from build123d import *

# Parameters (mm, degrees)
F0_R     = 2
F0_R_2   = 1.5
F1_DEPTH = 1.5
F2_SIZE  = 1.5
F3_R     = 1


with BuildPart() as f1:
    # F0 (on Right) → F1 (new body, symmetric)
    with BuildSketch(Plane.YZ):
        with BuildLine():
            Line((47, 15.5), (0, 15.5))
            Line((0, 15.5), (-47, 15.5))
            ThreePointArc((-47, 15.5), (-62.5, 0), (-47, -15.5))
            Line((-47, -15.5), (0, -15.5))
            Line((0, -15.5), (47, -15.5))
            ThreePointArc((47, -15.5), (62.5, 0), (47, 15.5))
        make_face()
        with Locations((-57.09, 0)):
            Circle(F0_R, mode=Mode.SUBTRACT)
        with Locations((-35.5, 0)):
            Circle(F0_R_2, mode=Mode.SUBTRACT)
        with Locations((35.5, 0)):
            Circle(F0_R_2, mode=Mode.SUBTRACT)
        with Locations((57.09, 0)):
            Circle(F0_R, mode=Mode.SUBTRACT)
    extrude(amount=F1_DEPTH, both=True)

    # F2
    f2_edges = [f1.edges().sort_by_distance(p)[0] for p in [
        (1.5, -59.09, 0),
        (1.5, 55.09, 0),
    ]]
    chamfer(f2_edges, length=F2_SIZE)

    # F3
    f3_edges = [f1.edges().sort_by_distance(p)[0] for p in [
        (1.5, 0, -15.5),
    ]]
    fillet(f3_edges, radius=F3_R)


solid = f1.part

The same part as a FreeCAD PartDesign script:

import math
import FreeCAD as App
import Part
import Sketcher
from FreeCAD import Vector


def edges_at(feature, points):
    """Names of the edges that pass closest to the given points."""
    edges = feature.Shape.Edges
    near = lambda p: min(range(len(edges)), key=lambda i: edges[i].distToShape(Part.Vertex(*p))[0])
    return sorted({f"Edge{near(p) + 1}" for p in points})

doc = App.newDocument("Part")
body = doc.addObject("PartDesign::Body", "Body")

sketch1 = body.newObject("Sketcher::SketchObject", "Sketch")
sketch1.AttachmentSupport = (doc.getObject("YZ_Plane"), [""])
sketch1.MapMode = "FlatFace"
sketch1.addGeometry([
    Part.LineSegment(Vector(47, 15.5, 0), Vector(-47, 15.5, 0)),
    Part.ArcOfCircle(Part.Circle(Vector(-47, 0, 0), Vector(0, 0, 1), 15.5), math.radians(90), math.radians(270)),
    Part.LineSegment(Vector(-47, -15.5, 0), Vector(47, -15.5, 0)),
    Part.ArcOfCircle(Part.Circle(Vector(47, 0, 0), Vector(0, 0, 1), 15.5), math.radians(-90), math.radians(90)),
    Part.Circle(Vector(-35.5, 0, 0), Vector(0, 0, 1), 1.5),
    Part.Circle(Vector(35.5, 0, 0), Vector(0, 0, 1), 1.5),
    Part.Circle(Vector(-57.1, 0, 0), Vector(0, 0, 1), 2),
    Part.Circle(Vector(57.1, 0, 0), Vector(0, 0, 1), 2),
], False)
sketch1.addConstraint([
    Sketcher.Constraint("Tangent", 0, 2, 1, 1),
    Sketcher.Constraint("Tangent", 1, 2, 2, 1),
    Sketcher.Constraint("Tangent", 2, 2, 3, 1),
    Sketcher.Constraint("Tangent", 3, 2, 0, 1),
    Sketcher.Constraint("Horizontal", 0),
    Sketcher.Constraint("Horizontal", 2),
    Sketcher.Constraint("Equal", 4, 5),
    Sketcher.Constraint("Equal", 6, 7),
    Sketcher.Constraint("Symmetric", 1, 3, 3, 3, -1, 1),
    Sketcher.Constraint("Symmetric", 4, 3, 5, 3, -1, 1),
    Sketcher.Constraint("Symmetric", 6, 3, 7, 3, -1, 1),
    Sketcher.Constraint("PointOnObject", 4, 3, -1),
    Sketcher.Constraint("PointOnObject", 6, 3, -1),
    Sketcher.Constraint("Diameter", 4, 3.0),
    Sketcher.Constraint("Diameter", 6, 4.0),
    Sketcher.Constraint("Radius", 1, 15.5),
    Sketcher.Constraint("DistanceX", 0, 2, 0, 1, 94.0),
    Sketcher.Constraint("DistanceX", 4, 3, 5, 3, 71.0),
    Sketcher.Constraint("DistanceX", 6, 3, -1, 1, 57.09),
])
pad1 = body.newObject("PartDesign::Pad", "Pad")
pad1.Profile = sketch1
pad1.Length = 3
pad1.Midplane = True
doc.recompute()

chamfer = body.newObject("PartDesign::Chamfer", "Chamfer")
chamfer.Base = (pad1, edges_at(pad1, [(1.5, -59.09, 0), (1.5, 55.09, 0)]))
chamfer.Size = 1.5
doc.recompute()

fillet = body.newObject("PartDesign::Fillet", "Fillet")
fillet.Base = (chamfer, edges_at(chamfer, [(1.5, 0, -15.5)]))
fillet.Radius = 1

doc.recompute()
